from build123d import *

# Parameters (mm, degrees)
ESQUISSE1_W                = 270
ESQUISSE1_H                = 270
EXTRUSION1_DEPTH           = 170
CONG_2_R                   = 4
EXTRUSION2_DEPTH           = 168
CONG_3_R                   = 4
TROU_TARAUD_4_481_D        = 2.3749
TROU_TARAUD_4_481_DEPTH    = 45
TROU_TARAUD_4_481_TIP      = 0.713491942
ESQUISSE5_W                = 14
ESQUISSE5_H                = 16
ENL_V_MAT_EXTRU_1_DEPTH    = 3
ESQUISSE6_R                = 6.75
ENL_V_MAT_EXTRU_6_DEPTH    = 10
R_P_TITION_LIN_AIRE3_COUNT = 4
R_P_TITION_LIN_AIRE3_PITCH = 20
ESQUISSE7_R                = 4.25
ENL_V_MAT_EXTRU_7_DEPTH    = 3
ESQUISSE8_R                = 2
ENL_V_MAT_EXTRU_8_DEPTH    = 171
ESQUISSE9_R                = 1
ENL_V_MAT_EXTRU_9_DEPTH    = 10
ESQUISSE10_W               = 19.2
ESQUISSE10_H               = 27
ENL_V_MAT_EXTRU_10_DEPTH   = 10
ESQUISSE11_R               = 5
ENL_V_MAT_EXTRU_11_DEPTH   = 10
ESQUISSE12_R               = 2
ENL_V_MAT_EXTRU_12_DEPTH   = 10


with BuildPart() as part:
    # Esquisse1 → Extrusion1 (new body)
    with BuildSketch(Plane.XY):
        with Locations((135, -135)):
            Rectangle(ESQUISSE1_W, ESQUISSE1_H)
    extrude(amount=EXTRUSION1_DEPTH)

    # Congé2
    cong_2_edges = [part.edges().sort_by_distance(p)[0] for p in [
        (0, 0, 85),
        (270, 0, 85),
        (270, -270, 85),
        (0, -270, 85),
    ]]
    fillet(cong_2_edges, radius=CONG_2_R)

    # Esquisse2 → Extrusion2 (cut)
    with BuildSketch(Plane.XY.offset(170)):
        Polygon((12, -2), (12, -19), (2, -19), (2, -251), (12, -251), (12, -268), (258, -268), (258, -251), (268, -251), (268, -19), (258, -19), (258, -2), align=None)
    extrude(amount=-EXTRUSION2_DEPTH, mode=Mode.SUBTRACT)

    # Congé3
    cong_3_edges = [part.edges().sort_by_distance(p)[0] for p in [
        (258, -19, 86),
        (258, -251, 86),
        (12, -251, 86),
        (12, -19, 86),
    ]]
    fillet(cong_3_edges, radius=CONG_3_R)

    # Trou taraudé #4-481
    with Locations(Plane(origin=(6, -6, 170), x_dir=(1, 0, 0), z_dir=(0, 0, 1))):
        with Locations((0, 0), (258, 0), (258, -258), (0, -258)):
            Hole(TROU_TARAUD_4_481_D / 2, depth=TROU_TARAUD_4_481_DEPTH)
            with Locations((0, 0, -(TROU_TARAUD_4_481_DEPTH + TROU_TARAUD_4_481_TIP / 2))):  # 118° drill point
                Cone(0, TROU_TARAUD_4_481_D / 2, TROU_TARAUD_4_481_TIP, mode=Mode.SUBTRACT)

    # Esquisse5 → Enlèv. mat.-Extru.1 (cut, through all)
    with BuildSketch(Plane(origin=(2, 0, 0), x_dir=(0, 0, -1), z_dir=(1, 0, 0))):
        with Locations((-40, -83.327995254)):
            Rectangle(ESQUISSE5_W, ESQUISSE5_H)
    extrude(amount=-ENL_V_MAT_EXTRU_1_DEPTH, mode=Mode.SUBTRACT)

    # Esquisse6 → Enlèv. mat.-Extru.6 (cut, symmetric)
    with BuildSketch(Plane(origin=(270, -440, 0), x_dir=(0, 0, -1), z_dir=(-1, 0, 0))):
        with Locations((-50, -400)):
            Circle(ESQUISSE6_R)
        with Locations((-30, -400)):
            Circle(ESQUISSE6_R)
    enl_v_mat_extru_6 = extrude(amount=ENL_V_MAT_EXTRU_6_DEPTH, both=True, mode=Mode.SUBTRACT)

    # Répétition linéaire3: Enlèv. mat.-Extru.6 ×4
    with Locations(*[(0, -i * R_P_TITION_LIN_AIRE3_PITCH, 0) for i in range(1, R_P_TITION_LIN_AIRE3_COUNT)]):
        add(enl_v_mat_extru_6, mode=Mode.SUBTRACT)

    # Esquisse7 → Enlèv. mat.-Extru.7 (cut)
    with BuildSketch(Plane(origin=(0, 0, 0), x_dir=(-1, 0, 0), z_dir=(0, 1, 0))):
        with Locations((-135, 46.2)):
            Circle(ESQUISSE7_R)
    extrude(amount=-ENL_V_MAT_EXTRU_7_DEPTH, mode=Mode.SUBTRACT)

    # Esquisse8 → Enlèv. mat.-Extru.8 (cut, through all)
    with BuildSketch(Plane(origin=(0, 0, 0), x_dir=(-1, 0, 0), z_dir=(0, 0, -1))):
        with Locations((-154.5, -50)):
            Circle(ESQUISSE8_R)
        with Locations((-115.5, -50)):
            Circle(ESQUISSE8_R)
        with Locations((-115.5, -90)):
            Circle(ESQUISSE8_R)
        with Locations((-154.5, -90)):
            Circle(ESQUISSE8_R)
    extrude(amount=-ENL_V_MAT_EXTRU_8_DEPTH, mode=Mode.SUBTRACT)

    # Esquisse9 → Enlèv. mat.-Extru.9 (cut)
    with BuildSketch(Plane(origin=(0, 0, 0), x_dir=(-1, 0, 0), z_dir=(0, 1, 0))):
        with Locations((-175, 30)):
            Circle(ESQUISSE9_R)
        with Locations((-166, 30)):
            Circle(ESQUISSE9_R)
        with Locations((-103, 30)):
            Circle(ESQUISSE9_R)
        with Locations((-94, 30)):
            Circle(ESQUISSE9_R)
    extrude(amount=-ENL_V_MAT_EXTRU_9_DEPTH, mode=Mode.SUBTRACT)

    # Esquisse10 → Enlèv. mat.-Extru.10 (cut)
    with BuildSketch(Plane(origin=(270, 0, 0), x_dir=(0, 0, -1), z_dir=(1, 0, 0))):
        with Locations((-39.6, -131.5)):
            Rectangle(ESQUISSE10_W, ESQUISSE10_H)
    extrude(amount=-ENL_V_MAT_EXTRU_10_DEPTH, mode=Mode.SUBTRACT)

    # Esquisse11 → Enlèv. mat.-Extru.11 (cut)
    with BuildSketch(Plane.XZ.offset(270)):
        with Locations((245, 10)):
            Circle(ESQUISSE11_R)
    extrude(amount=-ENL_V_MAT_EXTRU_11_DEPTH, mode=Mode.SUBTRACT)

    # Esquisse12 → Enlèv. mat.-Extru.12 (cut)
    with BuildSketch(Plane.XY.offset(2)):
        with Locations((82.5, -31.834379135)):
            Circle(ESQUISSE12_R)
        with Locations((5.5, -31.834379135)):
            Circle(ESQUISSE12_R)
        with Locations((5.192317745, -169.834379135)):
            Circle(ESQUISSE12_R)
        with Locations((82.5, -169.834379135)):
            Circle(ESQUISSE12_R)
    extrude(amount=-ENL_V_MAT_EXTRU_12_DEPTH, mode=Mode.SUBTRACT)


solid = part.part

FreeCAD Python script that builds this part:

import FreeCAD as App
import Part
import Sketcher
from FreeCAD import Vector


def edges_at(feature, points):
    """Names of the edges that pass closest to the given points."""
    edges = feature.Shape.Edges
    near = lambda p: min(range(len(edges)), key=lambda i: edges[i].distToShape(Part.Vertex(*p))[0])
    return sorted({f"Edge{near(p) + 1}" for p in points})


def add_polygon(sketch, points):
    """Adds a closed chain of lines whose ends are joined by coincident constraints."""
    first, n = sketch.GeometryCount, len(points)
    for a, b in zip(points, points[1:] + points[:1]):
        sketch.addGeometry(Part.LineSegment(App.Vector(*a, 0), App.Vector(*b, 0)), False)
    for i in range(n):
        sketch.addConstraint(Sketcher.Constraint("Coincident", first + i, 2, first + (i + 1) % n, 1))

doc = App.newDocument("Part")
body = doc.addObject("PartDesign::Body", "Body")

# Sketch on XY plane
sketch1 = body.newObject("Sketcher::SketchObject", "Sketch")
sketch1.AttachmentSupport = (doc.getObject("XY_Plane"), [""])
sketch1.MapMode = "FlatFace"
add_polygon(sketch1, [(0, 0), (0, -270), (270, -270), (270, 0)])  # lines 0-3
sketch1.addConstraint([
    Sketcher.Constraint("Vertical", 0),
    Sketcher.Constraint("Horizontal", 1),
    Sketcher.Constraint("Vertical", 2),
    Sketcher.Constraint("Horizontal", 3),
    Sketcher.Constraint("Coincident", 3, 2, -1, 1),
    Sketcher.Constraint("Equal", 3, 0),
    Sketcher.Constraint("DistanceX", 1, 1, 1, 2, 270.0),
])
pad1 = body.newObject("PartDesign::Pad", "Pad")
pad1.Profile = sketch1
pad1.Length = 170
doc.recompute()

fillet = body.newObject("PartDesign::Fillet", "Fillet")
fillet.Base = (pad1, edges_at(pad1, [
    (0, 0, 85),
    (270, 0, 85),
    (270, -270, 85),
    (0, -270, 85),
]))
fillet.Radius = 4

# Sketch on XY plane
sketch2 = body.newObject("Sketcher::SketchObject", "Sketch001")
sketch2.AttachmentSupport = (doc.getObject("XY_Plane"), [""])
sketch2.MapMode = "FlatFace"
sketch2.AttachmentOffset = App.Placement(Vector(0, 0, 170), App.Rotation())
add_polygon(sketch2, [(12, -2), (12, -19), (2, -19), (2, -251), (12, -251), (12, -268), (258, -268), (258, -251), (268, -251), (268, -19), (258, -19), (258, -2)])  # lines 0-11
sketch2.addConstraint([
    Sketcher.Constraint("Vertical", 0),
    Sketcher.Constraint("Horizontal", 1),
    Sketcher.Constraint("Vertical", 2),
    Sketcher.Constraint("Horizontal", 3),
    Sketcher.Constraint("Vertical", 4),
    Sketcher.Constraint("Horizontal", 5),
    Sketcher.Constraint("Vertical", 6),
    Sketcher.Constraint("Horizontal", 7),
    Sketcher.Constraint("Vertical", 8),
    Sketcher.Constraint("Horizontal", 9),
    Sketcher.Constraint("Vertical", 10),
    Sketcher.Constraint("Horizontal", 11),
    Sketcher.Constraint("Horizontal", 3, 2, 6, 2),
    Sketcher.Constraint("Horizontal", 1, 2, 8, 2),
    Sketcher.Constraint("Vertical", 0, 2, 3, 2),
    Sketcher.Constraint("Vertical", 6, 2, 9, 2),
    Sketcher.Constraint("Equal", 3, 7),
    Sketcher.Constraint("Equal", 0, 4),
    Sketcher.Constraint("DistanceX", 1, 2, 1, 1, 10.0),
    Sketcher.Constraint("DistanceX", 5, 1, 5, 2, 246.0),
    Sketcher.Constraint("DistanceY", 0, 2, 0, 1, 17.0),
    Sketcher.Constraint("DistanceY", 2, 2, 2, 1, 232.0),
    Sketcher.Constraint("DistanceX", -1, 1, 0, 2, 12.0),
    Sketcher.Constraint("DistanceY", 0, 2, -1, 1, 19.0),
])
pocket1 = body.newObject("PartDesign::Pocket", "Pocket")
pocket1.Profile = sketch2
pocket1.Length = 168
doc.recompute()

fillet2 = body.newObject("PartDesign::Fillet", "Fillet001")
fillet2.Base = (pocket1, edges_at(pocket1, [
    (258, -19, 86),
    (258, -251, 86),
    (12, -251, 86),
    (12, -19, 86),
]))
fillet2.Radius = 4

# Sketch on XY plane
sketch3 = body.newObject("Sketcher::SketchObject", "Sketch002")
sketch3.AttachmentSupport = (doc.getObject("XY_Plane"), [""])
sketch3.MapMode = "FlatFace"
sketch3.AttachmentOffset = App.Placement(Vector(0, 0, 170), App.Rotation())
sketch3.addGeometry([
    Part.Circle(Vector(6, -6, 0), Vector(0, 0, 1), 1.2),
    Part.Circle(Vector(264, -6, 0), Vector(0, 0, 1), 1.2),
    Part.Circle(Vector(264, -264, 0), Vector(0, 0, 1), 1.2),
    Part.Circle(Vector(6, -264, 0), Vector(0, 0, 1), 1.2),
], False)
sketch3.addConstraint([
    Sketcher.Constraint("Equal", 0, 1),
    Sketcher.Constraint("Equal", 1, 2),
    Sketcher.Constraint("Equal", 2, 3),
    Sketcher.Constraint("Horizontal", 0, 3, 1, 3),
    Sketcher.Constraint("Horizontal", 2, 3, 3, 3),
    Sketcher.Constraint("Vertical", 1, 3, 2, 3),
    Sketcher.Constraint("Vertical", 0, 3, 3, 3),
    Sketcher.Constraint("DistanceX", -1, 1, 0, 3, 6.0),
    Sketcher.Constraint("DistanceY", 0, 3, -1, 1, 6.0),
    Sketcher.Constraint("DistanceX", -1, 1, 1, 3, 264.0),
    Sketcher.Constraint("DistanceY", 2, 3, -1, 1, 264.0),
    Sketcher.Constraint("Diameter", 0, 2.3749),
])
doc.recompute()
hole = body.newObject("PartDesign::Hole", "Hole")
hole.Profile = sketch3
hole.ThreadType = "None"
hole.Diameter = 2.3749
hole.DepthType = "Dimension"
hole.Depth = 45
hole.DrillPoint = "Angled"
hole.DrillPointAngle = 118

# Sketch on YZ plane
sketch4 = body.newObject("Sketcher::SketchObject", "Sketch003")
sketch4.AttachmentSupport = (doc.getObject("YZ_Plane"), [""])
sketch4.MapMode = "FlatFace"
sketch4.AttachmentOffset = App.Placement(Vector(0, 0, 2), App.Rotation())
add_polygon(sketch4, [(-75, 47), (-91, 47), (-91, 33), (-75, 33)])  # lines 0-3
sketch4.addConstraint([
    Sketcher.Constraint("Horizontal", 0),
    Sketcher.Constraint("Vertical", 1),
    Sketcher.Constraint("Horizontal", 2),
    Sketcher.Constraint("Vertical", 3),
    Sketcher.Constraint("DistanceX", 0, 2, 0, 1, 16.0),
    Sketcher.Constraint("DistanceY", 1, 2, 1, 1, 14.0),
    Sketcher.Constraint("DistanceY", -1, 1, 0, 2, 47.0),
    Sketcher.Constraint("DistanceX", 0, 2, -1, 1, 91.327995),
])
pocket2 = body.newObject("PartDesign::Pocket", "Pocket001")
pocket2.Profile = sketch4
pocket2.Type = "ThroughAll"

# Sketch on YZ plane
sketch5 = body.newObject("Sketcher::SketchObject", "Sketch004")
sketch5.AttachmentSupport = (doc.getObject("YZ_Plane"), [""])
sketch5.MapMode = "FlatFace"
sketch5.AttachmentOffset = App.Placement(Vector(0, 0, 270), App.Rotation())
sketch5.addGeometry([
    Part.Circle(Vector(-40, 50, 0), Vector(0, 0, 1), 7),
    Part.Circle(Vector(-40, 30, 0), Vector(0, 0, 1), 7),
], False)
sketch5.addConstraint([
    Sketcher.Constraint("Equal", 0, 1),
    Sketcher.Constraint("Vertical", 0, 3, 1, 3),
    Sketcher.Constraint("Diameter", 0, 13.5),
    Sketcher.Constraint("DistanceX", 0, 3, -1, 1, 40.0),
    Sketcher.Constraint("DistanceY", -1, 1, 0, 3, 50.0),
    Sketcher.Constraint("DistanceY", -1, 1, 1, 3, 30.0),
])
pocket3 = body.newObject("PartDesign::Pocket", "Pocket002")
pocket3.Profile = sketch5
pocket3.Length = 20
pocket3.Midplane = True
doc.recompute()

linearpattern = body.newObject("PartDesign::LinearPattern", "LinearPattern")
linearpattern.Originals = [pocket3]
linearpattern.Direction = (doc.getObject("Y_Axis"), [""])
linearpattern.Mode = "offset"
linearpattern.Offset = 20
linearpattern.Occurrences = 4
linearpattern.Reversed = True
body.Tip = linearpattern

# Sketch on XZ plane
sketch6 = body.newObject("Sketcher::SketchObject", "Sketch005")
sketch6.AttachmentSupport = (doc.getObject("XZ_Plane"), [""])
sketch6.MapMode = "FlatFace"
sketch6.addGeometry(Part.Circle(Vector(135, 46.2, 0), Vector(0, 0, 1), 4.2), False)
sketch6.addConstraint([
    Sketcher.Constraint("Diameter", 0, 8.5),
    Sketcher.Constraint("DistanceX", -1, 1, 0, 3, 135.0),
    Sketcher.Constraint("DistanceY", -1, 1, 0, 3, 46.2),
])
pocket4 = body.newObject("PartDesign::Pocket", "Pocket003")
pocket4.Profile = sketch6
pocket4.Length = 3
pocket4.Reversed = True

# Sketch on XY plane
sketch7 = body.newObject("Sketcher::SketchObject", "Sketch006")
sketch7.AttachmentSupport = (doc.getObject("XY_Plane"), [""])
sketch7.MapMode = "FlatFace"
sketch7.addGeometry([
    Part.Circle(Vector(154.5, -50, 0), Vector(0, 0, 1), 2),
    Part.Circle(Vector(115.5, -50, 0), Vector(0, 0, 1), 2),
    Part.Circle(Vector(115.5, -90, 0), Vector(0, 0, 1), 2),
    Part.Circle(Vector(154.5, -90, 0), Vector(0, 0, 1), 2),
], False)
sketch7.addConstraint([
    Sketcher.Constraint("Equal", 0, 1),
    Sketcher.Constraint("Equal", 1, 2),
    Sketcher.Constraint("Equal", 2, 3),
    Sketcher.Constraint("Horizontal", 0, 3, 1, 3),
    Sketcher.Constraint("Horizontal", 2, 3, 3, 3),
    Sketcher.Constraint("Vertical", 1, 3, 2, 3),
    Sketcher.Constraint("Vertical", 0, 3, 3, 3),
    Sketcher.Constraint("Diameter", 0, 4.0),
    Sketcher.Constraint("DistanceY", 0, 3, -1, 1, 50.0),
    Sketcher.Constraint("DistanceY", 2, 3, -1, 1, 90.0),
    Sketcher.Constraint("DistanceX", 1, 3, 0, 3, 39.0),
    Sketcher.Constraint("DistanceX", -1, 1, 0, 3, 154.5),
])
pocket5 = body.newObject("PartDesign::Pocket", "Pocket004")
pocket5.Profile = sketch7
pocket5.Type = "ThroughAll"
pocket5.Reversed = True

# Sketch on XZ plane
sketch8 = body.newObject("Sketcher::SketchObject", "Sketch007")
sketch8.AttachmentSupport = (doc.getObject("XZ_Plane"), [""])
sketch8.MapMode = "FlatFace"
sketch8.addGeometry([
    Part.Circle(Vector(175, 30, 0), Vector(0, 0, 1), 1),
    Part.Circle(Vector(166, 30, 0), Vector(0, 0, 1), 1),
    Part.Circle(Vector(103, 30, 0), Vector(0, 0, 1), 1),
    Part.Circle(Vector(94, 30, 0), Vector(0, 0, 1), 1),
], False)
sketch8.addConstraint([
    Sketcher.Constraint("Equal", 0, 1),
    Sketcher.Constraint("Equal", 1, 2),
    Sketcher.Constraint("Equal", 2, 3),
    Sketcher.Constraint("Horizontal", 0, 3, 1, 3),
    Sketcher.Constraint("Horizontal", 1, 3, 2, 3),
    Sketcher.Constraint("Horizontal", 2, 3, 3, 3),
    Sketcher.Constraint("Diameter", 0, 2.0),
    Sketcher.Constraint("DistanceX", -1, 1, 0, 3, 175.0),
    Sketcher.Constraint("DistanceY", -1, 1, 0, 3, 30.0),
    Sketcher.Constraint("DistanceX", -1, 1, 1, 3, 166.0),
    Sketcher.Constraint("DistanceX", -1, 1, 2, 3, 103.0),
    Sketcher.Constraint("DistanceX", -1, 1, 3, 3, 94.0),
])
pocket6 = body.newObject("PartDesign::Pocket", "Pocket005")
pocket6.Profile = sketch8
pocket6.Length = 10
pocket6.Reversed = True

# Sketch on YZ plane
sketch9 = body.newObject("Sketcher::SketchObject", "Sketch008")
sketch9.AttachmentSupport = (doc.getObject("YZ_Plane"), [""])
sketch9.MapMode = "FlatFace"
sketch9.AttachmentOffset = App.Placement(Vector(0, 0, 270), App.Rotation())
add_polygon(sketch9, [(-118, 49), (-145, 49), (-145, 30), (-118, 30)])  # lines 0-3
sketch9.addConstraint([
    Sketcher.Constraint("Horizontal", 0),
    Sketcher.Constraint("Vertical", 1),
    Sketcher.Constraint("Horizontal", 2),
    Sketcher.Constraint("Vertical", 3),
    Sketcher.Constraint("DistanceX", 0, 2, 0, 1, 27.0),
    Sketcher.Constraint("DistanceY", 1, 2, 1, 1, 19.2),
    Sketcher.Constraint("DistanceX", 0, 2, -1, 1, 145.0),
    Sketcher.Constraint("DistanceY", -1, 1, 1, 2, 30.0),
])
pocket7 = body.newObject("PartDesign::Pocket", "Pocket006")
pocket7.Profile = sketch9
pocket7.Length = 10

# Sketch on XZ plane
sketch10 = body.newObject("Sketcher::SketchObject", "Sketch009")
sketch10.AttachmentSupport = (doc.getObject("XZ_Plane"), [""])
sketch10.MapMode = "FlatFace"
sketch10.AttachmentOffset = App.Placement(Vector(0, 0, 270), App.Rotation())
sketch10.addGeometry(Part.Circle(Vector(245, 10, 0), Vector(0, 0, 1), 5), False)
sketch10.addConstraint([
    Sketcher.Constraint("Diameter", 0, 10.0),
    Sketcher.Constraint("DistanceX", -1, 1, 0, 3, 245.0),
    Sketcher.Constraint("DistanceY", -1, 1, 0, 3, 10.0),
])
pocket8 = body.newObject("PartDesign::Pocket", "Pocket007")
pocket8.Profile = sketch10
pocket8.Length = 10

# Sketch on XY plane
sketch11 = body.newObject("Sketcher::SketchObject", "Sketch010")
sketch11.AttachmentSupport = (doc.getObject("XY_Plane"), [""])
sketch11.MapMode = "FlatFace"
sketch11.AttachmentOffset = App.Placement(Vector(0, 0, 2), App.Rotation())
sketch11.addGeometry([
    Part.Circle(Vector(82.5, -31.8, 0), Vector(0, 0, 1), 2),
    Part.Circle(Vector(5.5, -31.8, 0), Vector(0, 0, 1), 2),
    Part.Circle(Vector(5.2, -169.8, 0), Vector(0, 0, 1), 2),
    Part.Circle(Vector(82.5, -169.8, 0), Vector(0, 0, 1), 2),
], False)
sketch11.addConstraint([
    Sketcher.Constraint("Equal", 0, 1),
    Sketcher.Constraint("Equal", 1, 2),
    Sketcher.Constraint("Equal", 2, 3),
    Sketcher.Constraint("Horizontal", 0, 3, 1, 3),
    Sketcher.Constraint("Horizontal", 2, 3, 3, 3),
    Sketcher.Constraint("Vertical", 0, 3, 3, 3),
    Sketcher.Constraint("Diameter", 0, 4.0),
    Sketcher.Constraint("DistanceX", 1, 3, 0, 3, 77.0),
    Sketcher.Constraint("DistanceY", 2, 3, 1, 3, 138.0),
    Sketcher.Constraint("DistanceX", -1, 1, 0, 3, 82.5),
    Sketcher.Constraint("DistanceY", 0, 3, -1, 1, 31.834379),
    Sketcher.Constraint("DistanceX", -1, 1, 2, 3, 5.192318),
])
pocket9 = body.newObject("PartDesign::Pocket", "Pocket008")
pocket9.Profile = sketch11
pocket9.Length = 10

doc.recompute()
